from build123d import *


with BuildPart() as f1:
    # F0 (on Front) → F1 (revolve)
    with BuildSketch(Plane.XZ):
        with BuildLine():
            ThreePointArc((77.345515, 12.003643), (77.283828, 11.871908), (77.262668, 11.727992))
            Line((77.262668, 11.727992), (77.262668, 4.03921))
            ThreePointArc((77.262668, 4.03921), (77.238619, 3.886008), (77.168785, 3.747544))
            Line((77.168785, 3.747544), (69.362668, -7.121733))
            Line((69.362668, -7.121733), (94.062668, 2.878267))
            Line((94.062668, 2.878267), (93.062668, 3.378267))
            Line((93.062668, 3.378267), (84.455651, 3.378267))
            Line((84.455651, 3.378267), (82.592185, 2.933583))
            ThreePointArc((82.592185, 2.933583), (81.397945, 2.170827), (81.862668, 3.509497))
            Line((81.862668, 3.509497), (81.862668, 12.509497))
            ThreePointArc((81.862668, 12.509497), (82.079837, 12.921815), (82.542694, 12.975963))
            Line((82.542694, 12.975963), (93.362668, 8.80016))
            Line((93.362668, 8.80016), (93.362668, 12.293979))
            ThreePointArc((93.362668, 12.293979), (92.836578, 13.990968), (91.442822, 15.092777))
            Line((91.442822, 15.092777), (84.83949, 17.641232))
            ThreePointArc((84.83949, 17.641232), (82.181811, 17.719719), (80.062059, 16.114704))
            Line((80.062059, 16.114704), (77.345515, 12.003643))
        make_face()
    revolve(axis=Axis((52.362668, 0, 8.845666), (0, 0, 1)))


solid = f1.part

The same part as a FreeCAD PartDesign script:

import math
import FreeCAD as App
import Part
import Sketcher
from FreeCAD import Vector
Q = App.Units.Quantity

doc = App.newDocument("Part")
body = doc.addObject("PartDesign::Body", "Body")

# Sketch on XZ plane
sketch1 = body.newObject("Sketcher::SketchObject", "Sketch")
sketch1.AttachmentSupport = (doc.getObject("XZ_Plane"), [""])
sketch1.MapMode = "FlatFace"
sketch1.addGeometry([
    Part.ArcOfCircle(Part.Circle(Vector(77.76, 11.73, 0), Vector(0, 0, 1), 0.5), math.radians(147), math.radians(180)),  # 0
    Part.LineSegment(Vector(77.26, 11.73, 0), Vector(77.26, 4.04, 0)),  # 1
    Part.ArcOfCircle(Part.Circle(Vector(76.76, 4.04, 0), Vector(0, 0, 1), 0.5), math.radians(-36), math.radians(0)),  # 2
    Part.LineSegment(Vector(77.17, 3.75, 0), Vector(69.36, -7.12, 0)),  # 3
    Part.LineSegment(Vector(69.36, -7.12, 0), Vector(94.06, 2.88, 0)),  # 4
    Part.LineSegment(Vector(94.06, 2.88, 0), Vector(93.06, 3.38, 0)),  # 5
    Part.LineSegment(Vector(93.06, 3.38, 0), Vector(84.46, 3.38, 0)),  # 6
    Part.LineSegment(Vector(84.46, 3.38, 0), Vector(82.59, 2.93, 0)),  # 7
    Part.ArcOfCircle(Part.Circle(Vector(81.86, 2.76, 0), Vector(0, 0, 1), 0.75), math.radians(90), math.radians(373)),  # 8
    Part.LineSegment(Vector(81.86, 3.51, 0), Vector(81.86, 12.51, 0)),  # 9
    Part.ArcOfCircle(Part.Circle(Vector(82.36, 12.51, 0), Vector(0, 0, 1), 0.5), math.radians(69), math.radians(180)),  # 10
    Part.LineSegment(Vector(82.54, 12.98, 0), Vector(93.36, 8.8, 0)),  # 11
    Part.LineSegment(Vector(93.36, 8.8, 0), Vector(93.36, 12.29, 0)),  # 12
    Part.ArcOfCircle(Part.Circle(Vector(90.36, 12.29, 0), Vector(0, 0, 1), 3), math.radians(0), math.radians(69)),  # 13
    Part.LineSegment(Vector(91.44, 15.09, 0), Vector(84.84, 17.64, 0)),  # 14
    Part.ArcOfCircle(Part.Circle(Vector(83.4, 13.91, 0), Vector(0, 0, 1), 4), math.radians(69), math.radians(147)),  # 15
    Part.LineSegment(Vector(80.06, 16.11, 0), Vector(77.35, 12, 0)),  # 16
], False)
sketch1.addGeometry(Part.LineSegment(Vector(52.36, -7.12, 0), Vector(52.36, 17.64, 0)), True)  # axis
sketch1.addConstraint([
    Sketcher.Constraint("Coincident", 0, 2, 1, 1),
    Sketcher.Constraint("Coincident", 1, 2, 2, 2),
    Sketcher.Constraint("Coincident", 2, 1, 3, 1),
    Sketcher.Constraint("Coincident", 3, 2, 4, 1),
    Sketcher.Constraint("Coincident", 4, 2, 5, 1),
    Sketcher.Constraint("Coincident", 5, 2, 6, 1),
    Sketcher.Constraint("Coincident", 6, 2, 7, 1),
    Sketcher.Constraint("Coincident", 7, 2, 8, 2),
    Sketcher.Constraint("Coincident", 8, 1, 9, 1),
    Sketcher.Constraint("Tangent", 9, 2, 10, 2),
    Sketcher.Constraint("Tangent", 10, 1, 11, 1),
    Sketcher.Constraint("Coincident", 11, 2, 12, 1),
    Sketcher.Constraint("Tangent", 12, 2, 13, 1),
    Sketcher.Constraint("Tangent", 13, 2, 14, 1),
    Sketcher.Constraint("Tangent", 14, 2, 15, 1),
    Sketcher.Constraint("Tangent", 15, 2, 16, 1),
    Sketcher.Constraint("Coincident", 16, 2, 0, 1),
    Sketcher.Constraint("Vertical", 1),
    Sketcher.Constraint("Horizontal", 6),
    Sketcher.Constraint("Vertical", 9),
    Sketcher.Constraint("Vertical", 12),
    Sketcher.Constraint("Vertical", 17),
    Sketcher.Constraint("Parallel", 11, 14),
    Sketcher.Constraint("Horizontal", 2, 3, 1, 2),
    Sketcher.Constraint("Horizontal", 3, 2, 17, 1),
    Sketcher.Constraint("Horizontal", 14, 2, 17, 2),
    Sketcher.Constraint("Radius", 13, Q("3 mm")),
    Sketcher.Constraint("Radius", 15, Q("3.999999 mm")),
    Sketcher.Constraint("Radius", 10, Q("0.500001 mm")),
    Sketcher.Constraint("DistanceY", 9, 1, 9, 2, Q("9 mm")),
    Sketcher.Constraint("Radius", 8, Q("0.75 mm")),
    Sketcher.Constraint("DistanceX", 10, 3, 13, 3, Q("8 mm")),
    Sketcher.Constraint("DistanceX", 5, 2, 4, 2, Q("1 mm")),
    Sketcher.Constraint("DistanceX", 17, 1, 3, 2, Q("17 mm")),
    Sketcher.Constraint("DistanceX", 8, 3, 10, 3, Q("0.5 mm")),
    Sketcher.Constraint("DistanceX", 0, 2, 10, 3, Q("5.100001 mm")),
    Sketcher.Constraint("DistanceX", 3, 2, 1, 2, Q("7.9 mm")),
    Sketcher.Constraint("DistanceX", 13, 3, 4, 2, Q("3.7 mm")),
    Sketcher.Constraint("DistanceY", 4, 2, 5, 2, Q("0.5 mm")),
    Sketcher.Constraint("Radius", 0, Q("0.500011 mm")),
    Sketcher.Constraint("Radius", 2, Q("0.499997 mm")),
    Sketcher.Constraint("DistanceY", 12, 1, 12, 2, Q("3.493819 mm")),
    Sketcher.Constraint("DistanceX", 2, 1, 7, 2, Q("5.4234 mm")),
    Sketcher.Constraint("DistanceY", 15, 3, 15, 2, Q("2.205202 mm")),
    Sketcher.Constraint("Distance", 7, Q("1.915789 mm")),
    Sketcher.Constraint("Distance", 11, Q("11.597809 mm")),
    Sketcher.Constraint("Distance", 16, Q("4.927518 mm")),
    Sketcher.Constraint("DistanceX", 6, 2, 6, 1, Q("8.607017 mm")),
    Sketcher.Constraint("DistanceY", 1, 2, 1, 1, Q("7.688782 mm")),
    Sketcher.Constraint("DistanceY", 17, 1, 17, 2, Q("24.762965 mm")),
    Sketcher.Constraint("DistanceX", -1, 1, 0, 3, Q("77.762679 mm")),
    Sketcher.Constraint("DistanceY", -1, 1, 0, 3, Q("11.727989 mm")),
    Sketcher.Constraint("DistanceY", -1, 1, 2, 3, Q("4.039209 mm")),
    Sketcher.Constraint("DistanceY", -1, 1, 13, 3, Q("12.29398 mm")),
    Sketcher.Constraint("DistanceY", 7, 2, 2, 1, Q("0.813961 mm")),
])
revolution = body.newObject("PartDesign::Revolution", "Revolution")
revolution.Profile = sketch1
revolution.ReferenceAxis = (sketch1, ["Axis0"])
revolution.Angle = 360

doc.recompute()
